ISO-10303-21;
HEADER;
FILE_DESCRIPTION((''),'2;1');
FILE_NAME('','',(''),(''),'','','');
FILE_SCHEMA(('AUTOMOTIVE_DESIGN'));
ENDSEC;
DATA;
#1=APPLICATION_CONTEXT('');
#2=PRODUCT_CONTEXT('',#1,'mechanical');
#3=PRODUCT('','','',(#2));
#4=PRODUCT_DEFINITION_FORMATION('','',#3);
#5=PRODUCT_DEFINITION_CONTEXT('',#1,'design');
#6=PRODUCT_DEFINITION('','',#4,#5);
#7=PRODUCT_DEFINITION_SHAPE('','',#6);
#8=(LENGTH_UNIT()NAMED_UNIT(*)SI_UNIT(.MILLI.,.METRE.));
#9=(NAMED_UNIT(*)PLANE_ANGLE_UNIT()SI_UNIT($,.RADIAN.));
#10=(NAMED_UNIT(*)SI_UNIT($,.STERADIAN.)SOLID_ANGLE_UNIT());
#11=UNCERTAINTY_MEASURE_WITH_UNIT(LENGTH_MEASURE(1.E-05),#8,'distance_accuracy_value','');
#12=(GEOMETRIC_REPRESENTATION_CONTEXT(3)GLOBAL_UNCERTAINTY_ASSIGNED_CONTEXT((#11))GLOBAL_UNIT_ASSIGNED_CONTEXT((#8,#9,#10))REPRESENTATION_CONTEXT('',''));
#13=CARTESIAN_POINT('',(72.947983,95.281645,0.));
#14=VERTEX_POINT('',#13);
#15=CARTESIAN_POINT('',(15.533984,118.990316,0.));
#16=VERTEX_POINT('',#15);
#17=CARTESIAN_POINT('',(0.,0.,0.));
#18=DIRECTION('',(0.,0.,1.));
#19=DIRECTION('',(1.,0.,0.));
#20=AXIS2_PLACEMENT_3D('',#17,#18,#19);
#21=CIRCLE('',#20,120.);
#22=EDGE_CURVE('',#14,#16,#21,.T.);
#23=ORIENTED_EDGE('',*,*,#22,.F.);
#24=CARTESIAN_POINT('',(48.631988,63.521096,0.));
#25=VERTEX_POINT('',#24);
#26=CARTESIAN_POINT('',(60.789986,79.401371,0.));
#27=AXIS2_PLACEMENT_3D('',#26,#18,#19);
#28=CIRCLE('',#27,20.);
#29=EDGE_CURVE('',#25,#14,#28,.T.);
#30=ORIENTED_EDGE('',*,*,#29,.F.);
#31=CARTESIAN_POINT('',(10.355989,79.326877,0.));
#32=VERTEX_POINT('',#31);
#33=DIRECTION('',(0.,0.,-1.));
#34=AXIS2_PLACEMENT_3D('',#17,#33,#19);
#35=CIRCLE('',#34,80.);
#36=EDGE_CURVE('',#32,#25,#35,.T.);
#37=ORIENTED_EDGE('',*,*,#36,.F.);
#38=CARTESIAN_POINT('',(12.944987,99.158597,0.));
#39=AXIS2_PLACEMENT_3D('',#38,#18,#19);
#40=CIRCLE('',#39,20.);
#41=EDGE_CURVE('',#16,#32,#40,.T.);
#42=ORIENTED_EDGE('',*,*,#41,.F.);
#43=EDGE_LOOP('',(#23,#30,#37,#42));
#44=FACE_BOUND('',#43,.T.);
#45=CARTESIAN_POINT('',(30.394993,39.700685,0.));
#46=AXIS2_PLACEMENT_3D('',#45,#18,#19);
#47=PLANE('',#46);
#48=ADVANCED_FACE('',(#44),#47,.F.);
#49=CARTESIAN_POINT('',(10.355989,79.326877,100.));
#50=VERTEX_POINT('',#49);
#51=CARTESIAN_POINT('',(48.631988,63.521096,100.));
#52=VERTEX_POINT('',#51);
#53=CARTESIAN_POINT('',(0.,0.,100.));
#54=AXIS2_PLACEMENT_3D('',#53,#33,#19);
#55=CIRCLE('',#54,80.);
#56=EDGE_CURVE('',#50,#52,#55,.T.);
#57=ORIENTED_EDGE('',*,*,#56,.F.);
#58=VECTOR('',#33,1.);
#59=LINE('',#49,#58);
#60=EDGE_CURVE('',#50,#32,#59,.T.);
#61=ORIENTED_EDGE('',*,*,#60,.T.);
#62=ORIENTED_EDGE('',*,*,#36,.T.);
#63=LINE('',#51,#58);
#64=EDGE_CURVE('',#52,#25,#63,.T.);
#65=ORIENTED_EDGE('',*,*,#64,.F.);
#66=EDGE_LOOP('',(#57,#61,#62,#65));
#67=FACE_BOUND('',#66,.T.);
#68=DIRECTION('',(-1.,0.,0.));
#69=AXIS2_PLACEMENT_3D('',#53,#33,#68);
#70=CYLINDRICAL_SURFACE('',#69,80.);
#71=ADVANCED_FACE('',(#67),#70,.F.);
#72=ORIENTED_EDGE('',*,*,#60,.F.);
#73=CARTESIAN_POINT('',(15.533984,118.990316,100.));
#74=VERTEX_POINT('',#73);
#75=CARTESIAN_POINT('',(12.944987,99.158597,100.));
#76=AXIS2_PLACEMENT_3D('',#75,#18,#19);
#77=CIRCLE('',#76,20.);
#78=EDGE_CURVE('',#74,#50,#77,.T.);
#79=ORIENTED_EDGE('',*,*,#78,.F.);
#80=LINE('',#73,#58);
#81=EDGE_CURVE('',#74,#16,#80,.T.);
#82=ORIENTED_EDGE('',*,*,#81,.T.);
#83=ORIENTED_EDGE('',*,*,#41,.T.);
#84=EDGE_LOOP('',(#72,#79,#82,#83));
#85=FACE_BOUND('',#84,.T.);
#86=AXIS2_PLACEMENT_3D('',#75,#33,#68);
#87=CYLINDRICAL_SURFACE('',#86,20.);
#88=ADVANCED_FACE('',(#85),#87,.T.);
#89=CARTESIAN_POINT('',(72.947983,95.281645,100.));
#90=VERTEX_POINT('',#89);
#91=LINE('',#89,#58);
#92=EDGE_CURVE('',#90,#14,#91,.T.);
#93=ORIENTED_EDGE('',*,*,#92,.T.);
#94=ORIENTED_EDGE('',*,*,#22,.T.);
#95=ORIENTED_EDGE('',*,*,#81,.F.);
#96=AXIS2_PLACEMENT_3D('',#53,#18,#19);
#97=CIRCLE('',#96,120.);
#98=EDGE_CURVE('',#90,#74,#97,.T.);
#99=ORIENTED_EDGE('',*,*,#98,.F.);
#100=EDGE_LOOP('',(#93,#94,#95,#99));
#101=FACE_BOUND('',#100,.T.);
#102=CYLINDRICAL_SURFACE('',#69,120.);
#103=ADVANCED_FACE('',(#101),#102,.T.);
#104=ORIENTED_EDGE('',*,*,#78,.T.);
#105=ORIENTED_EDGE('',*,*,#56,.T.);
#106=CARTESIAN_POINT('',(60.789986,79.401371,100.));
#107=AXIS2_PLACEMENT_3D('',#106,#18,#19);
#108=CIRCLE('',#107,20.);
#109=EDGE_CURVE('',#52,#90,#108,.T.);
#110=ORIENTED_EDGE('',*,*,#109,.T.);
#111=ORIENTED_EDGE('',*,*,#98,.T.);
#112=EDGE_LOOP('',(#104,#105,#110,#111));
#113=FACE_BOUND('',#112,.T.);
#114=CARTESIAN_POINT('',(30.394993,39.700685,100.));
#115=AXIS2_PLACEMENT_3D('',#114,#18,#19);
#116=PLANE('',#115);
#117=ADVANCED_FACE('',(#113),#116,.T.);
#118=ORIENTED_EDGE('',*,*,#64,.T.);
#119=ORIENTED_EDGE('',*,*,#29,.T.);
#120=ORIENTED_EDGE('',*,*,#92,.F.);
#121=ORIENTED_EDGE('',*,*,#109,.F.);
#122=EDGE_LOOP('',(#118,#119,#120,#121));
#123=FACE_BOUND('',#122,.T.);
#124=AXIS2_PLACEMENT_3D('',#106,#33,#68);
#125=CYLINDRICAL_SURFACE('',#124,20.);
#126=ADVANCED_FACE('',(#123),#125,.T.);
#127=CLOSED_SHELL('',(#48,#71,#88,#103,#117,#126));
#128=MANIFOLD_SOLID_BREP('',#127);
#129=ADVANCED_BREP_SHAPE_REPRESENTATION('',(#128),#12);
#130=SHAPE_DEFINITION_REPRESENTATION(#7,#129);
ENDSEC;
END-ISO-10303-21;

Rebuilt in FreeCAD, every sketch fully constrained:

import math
import FreeCAD as App
import Part
import Sketcher

V = App.Vector
Q = App.Units.Quantity

doc = App.newDocument("Part")
body = doc.addObject("PartDesign::Body", "Body")

# Sketch on XY plane
sketch1 = body.newObject("Sketcher::SketchObject", "Sketch")
sketch1.AttachmentSupport = (doc.getObject("XY_Plane"), [""])
sketch1.MapMode = "FlatFace"
sketch1.addGeometry([
    Part.ArcOfCircle(Part.Circle(V(0, 0, 0), V(0, 0, 1), 120), math.radians(53), math.radians(83)),
    Part.ArcOfCircle(Part.Circle(V(13, 99, 0), V(0, 0, 1), 20), math.radians(83), math.radians(263)),
    Part.ArcOfCircle(Part.Circle(V(0, 0, 0), V(0, 0, 1), 80), math.radians(53), math.radians(83)),
    Part.ArcOfCircle(Part.Circle(V(61, 79, 0), V(0, 0, 1), 20), math.radians(-127), math.radians(53)),
], False)
sketch1.addConstraint([
    Sketcher.Constraint("Tangent", 0, 2, 1, 1),
    Sketcher.Constraint("Tangent", 1, 2, 2, 2),
    Sketcher.Constraint("Tangent", 2, 1, 3, 1),
    Sketcher.Constraint("Tangent", 3, 2, 0, 1),
    Sketcher.Constraint("Coincident", 0, 3, -1, 1),
    Sketcher.Constraint("Coincident", 2, 3, -1, 1),
    Sketcher.Constraint("Radius", 0, Q("120 mm")),
    Sketcher.Constraint("Radius", 1, Q("20 mm")),
    Sketcher.Constraint("DistanceX", 1, 3, 3, 3, Q("47.844999 mm")),
    Sketcher.Constraint("DistanceY", 2, 1, 1, 3, Q("35.6375 mm")),
])
pad1 = body.newObject("PartDesign::Pad", "Pad")
pad1.Profile = sketch1
pad1.Length = 100

doc.recompute()
